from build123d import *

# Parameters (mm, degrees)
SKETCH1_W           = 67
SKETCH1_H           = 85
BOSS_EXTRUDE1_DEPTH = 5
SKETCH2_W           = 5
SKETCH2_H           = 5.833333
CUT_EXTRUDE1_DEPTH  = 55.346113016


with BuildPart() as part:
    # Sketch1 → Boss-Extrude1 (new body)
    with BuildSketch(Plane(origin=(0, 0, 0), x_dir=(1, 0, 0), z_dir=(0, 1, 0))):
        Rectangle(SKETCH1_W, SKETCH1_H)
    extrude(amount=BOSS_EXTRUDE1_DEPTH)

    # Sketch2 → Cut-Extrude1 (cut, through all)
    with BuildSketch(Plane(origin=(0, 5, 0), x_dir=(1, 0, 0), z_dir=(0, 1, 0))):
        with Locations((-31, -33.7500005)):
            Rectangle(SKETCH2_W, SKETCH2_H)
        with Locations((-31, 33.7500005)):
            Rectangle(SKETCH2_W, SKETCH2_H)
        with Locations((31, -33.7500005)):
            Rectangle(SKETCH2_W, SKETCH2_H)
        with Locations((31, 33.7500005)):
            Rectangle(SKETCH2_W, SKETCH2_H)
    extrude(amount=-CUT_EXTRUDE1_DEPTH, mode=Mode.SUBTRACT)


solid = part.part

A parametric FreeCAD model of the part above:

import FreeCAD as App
import Part
import Sketcher
from FreeCAD import Vector

doc = App.newDocument("Part")
body = doc.addObject("PartDesign::Body", "Body")

sketch1 = doc.addObject("Sketcher::SketchObject", "Sketch")
body.addObject(sketch1)
sketch1.AttachmentSupport = (doc.XZ_Plane, [""])
sketch1.MapMode = "FlatFace"
sketch1.addGeometry([
    Part.LineSegment(Vector(-34, -42, 0), Vector(-34, 42, 0)),
    Part.LineSegment(Vector(-34, 42, 0), Vector(34, 42, 0)),
    Part.LineSegment(Vector(34, 42, 0), Vector(34, -42, 0)),
    Part.LineSegment(Vector(34, -42, 0), Vector(-34, -42, 0)),
], False)
sketch1.addConstraint([
    Sketcher.Constraint("Coincident", 0, 2, 1, 1),
    Sketcher.Constraint("Coincident", 1, 2, 2, 1),
    Sketcher.Constraint("Coincident", 2, 2, 3, 1),
    Sketcher.Constraint("Coincident", 3, 2, 0, 1),
    Sketcher.Constraint("Vertical", 0),
    Sketcher.Constraint("Horizontal", 1),
    Sketcher.Constraint("Vertical", 2),
    Sketcher.Constraint("Horizontal", 3),
    Sketcher.Constraint("Symmetric", 0, 2, 2, 2, -1, 1),
    Sketcher.Constraint("DistanceX", 1, 1, 1, 2, 67.0),
    Sketcher.Constraint("DistanceY", 0, 1, 0, 2, 85.0),
])
pad1 = doc.addObject("PartDesign::Pad", "Pad")
body.addObject(pad1)
pad1.Profile = sketch1
pad1.Length = 5
pad1.Reversed = True

sketch2 = doc.addObject("Sketcher::SketchObject", "Sketch001")
body.addObject(sketch2)
sketch2.AttachmentSupport = (doc.XZ_Plane, [""])
sketch2.MapMode = "FlatFace"
sketch2.AttachmentOffset = App.Placement(Vector(0, 0, -5), App.Rotation())
sketch2.addGeometry([
    Part.LineSegment(Vector(-34, 31, 0), Vector(-34, 37, 0)),
    Part.LineSegment(Vector(-34, 37, 0), Vector(-28, 37, 0)),
    Part.LineSegment(Vector(-28, 37, 0), Vector(-28, 31, 0)),
    Part.LineSegment(Vector(-28, 31, 0), Vector(-34, 31, 0)),
    Part.LineSegment(Vector(-34, -37, 0), Vector(-34, -31, 0)),
    Part.LineSegment(Vector(-34, -31, 0), Vector(-28, -31, 0)),
    Part.LineSegment(Vector(-28, -31, 0), Vector(-28, -37, 0)),
    Part.LineSegment(Vector(-28, -37, 0), Vector(-34, -37, 0)),
    Part.LineSegment(Vector(28, 31, 0), Vector(28, 37, 0)),
    Part.LineSegment(Vector(28, 37, 0), Vector(34, 37, 0)),
    Part.LineSegment(Vector(34, 37, 0), Vector(34, 31, 0)),
    Part.LineSegment(Vector(34, 31, 0), Vector(28, 31, 0)),
    Part.LineSegment(Vector(28, -37, 0), Vector(28, -31, 0)),
    Part.LineSegment(Vector(28, -31, 0), Vector(34, -31, 0)),
    Part.LineSegment(Vector(34, -31, 0), Vector(34, -37, 0)),
    Part.LineSegment(Vector(34, -37, 0), Vector(28, -37, 0)),
], False)
sketch2.addConstraint([
    Sketcher.Constraint("Coincident", 0, 2, 1, 1),
    Sketcher.Constraint("Coincident", 1, 2, 2, 1),
    Sketcher.Constraint("Coincident", 2, 2, 3, 1),
    Sketcher.Constraint("Coincident", 3, 2, 0, 1),
    Sketcher.Constraint("Coincident", 4, 2, 5, 1),
    Sketcher.Constraint("Coincident", 5, 2, 6, 1),
    Sketcher.Constraint("Coincident", 6, 2, 7, 1),
    Sketcher.Constraint("Coincident", 7, 2, 4, 1),
    Sketcher.Constraint("Coincident", 8, 2, 9, 1),
    Sketcher.Constraint("Coincident", 9, 2, 10, 1),
    Sketcher.Constraint("Coincident", 10, 2, 11, 1),
    Sketcher.Constraint("Coincident", 11, 2, 8, 1),
    Sketcher.Constraint("Coincident", 12, 2, 13, 1),
    Sketcher.Constraint("Coincident", 13, 2, 14, 1),
    Sketcher.Constraint("Coincident", 14, 2, 15, 1),
    Sketcher.Constraint("Coincident", 15, 2, 12, 1),
    Sketcher.Constraint("Vertical", 0),
    Sketcher.Constraint("Horizontal", 1),
    Sketcher.Constraint("Vertical", 2),
    Sketcher.Constraint("Horizontal", 3),
    Sketcher.Constraint("Vertical", 4),
    Sketcher.Constraint("Horizontal", 5),
    Sketcher.Constraint("Vertical", 6),
    Sketcher.Constraint("Horizontal", 7),
    Sketcher.Constraint("Vertical", 8),
    Sketcher.Constraint("Horizontal", 9),
    Sketcher.Constraint("Vertical", 10),
    Sketcher.Constraint("Horizontal", 11),
    Sketcher.Constraint("Vertical", 12),
    Sketcher.Constraint("Horizontal", 13),
    Sketcher.Constraint("Vertical", 14),
    Sketcher.Constraint("Horizontal", 15),
    Sketcher.Constraint("Symmetric", 6, 2, 8, 2, -1, 1),
    Sketcher.Constraint("Symmetric", 4, 2, 10, 2, -1, 1),
    Sketcher.Constraint("Symmetric", 2, 2, 12, 2, -1, 1),
    Sketcher.Constraint("Symmetric", 0, 2, 14, 2, -1, 1),
    Sketcher.Constraint("Symmetric", 1, 2, 8, 2, -2),
    Sketcher.Constraint("Symmetric", 3, 2, 10, 2, -2),
    Sketcher.Constraint("DistanceX", 1, 1, 1, 2, 5.0),
    Sketcher.Constraint("DistanceX", 1, 2, 8, 2, 57.0),
    Sketcher.Constraint("DistanceY", 4, 2, 0, 2, 67.500001),
    Sketcher.Constraint("DistanceY", 0, 1, 0, 2, 5.833333),
])
pocket1 = doc.addObject("PartDesign::Pocket", "Pocket")
body.addObject(pocket1)
pocket1.Profile = sketch2
pocket1.Type = "ThroughAll"
pocket1.Reversed = True

doc.recompute()
